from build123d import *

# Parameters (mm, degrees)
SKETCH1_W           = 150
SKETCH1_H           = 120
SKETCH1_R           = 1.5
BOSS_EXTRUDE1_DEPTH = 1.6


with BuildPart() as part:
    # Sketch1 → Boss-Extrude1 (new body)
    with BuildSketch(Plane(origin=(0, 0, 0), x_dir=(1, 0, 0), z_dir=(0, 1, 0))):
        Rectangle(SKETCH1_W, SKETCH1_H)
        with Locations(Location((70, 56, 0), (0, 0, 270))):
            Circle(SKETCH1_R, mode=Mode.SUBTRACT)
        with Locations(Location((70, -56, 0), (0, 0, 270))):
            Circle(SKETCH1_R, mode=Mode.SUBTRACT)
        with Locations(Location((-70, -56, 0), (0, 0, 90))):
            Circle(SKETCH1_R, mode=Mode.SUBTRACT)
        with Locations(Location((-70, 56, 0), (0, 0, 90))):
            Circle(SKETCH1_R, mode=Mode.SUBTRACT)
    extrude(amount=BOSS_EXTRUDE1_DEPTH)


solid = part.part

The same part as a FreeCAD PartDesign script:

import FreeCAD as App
import Part
import Sketcher

V = App.Vector

doc = App.newDocument("Part")
params = doc.addObject("Spreadsheet::Sheet", "Params")
for row, (alias, value) in enumerate([
    ("sketch1_diameter", "3 mm"),
    ("sketch1_width", "150 mm"),
    ("sketch1_height", "120 mm"),
    ("pad1_length", "1.6 mm"),
], start=1):
    params.set(f"A{row}", alias)
    params.set(f"B{row}", "=" + value)
    params.setAlias(f"B{row}", alias)

body = doc.addObject("PartDesign::Body", "Body")

sketch1 = body.newObject("Sketcher::SketchObject", "Sketch")
sketch1.AttachmentSupport = (doc.getObject("XZ_Plane"), [""])
sketch1.MapMode = "FlatFace"
sketch1.addGeometry([
    Part.LineSegment(V(-75, -60, 0), V(-75, 60, 0)),
    Part.LineSegment(V(-75, 60, 0), V(75, 60, 0)),
    Part.LineSegment(V(75, 60, 0), V(75, -60, 0)),
    Part.LineSegment(V(75, -60, 0), V(-75, -60, 0)),
    Part.Circle(V(-70, 56, 0), V(0, 0, 1), 1.5),
    Part.Circle(V(70, 56, 0), V(0, 0, 1), 1.5),
    Part.Circle(V(-70, -56, 0), V(0, 0, 1), 1.5),
    Part.Circle(V(70, -56, 0), V(0, 0, 1), 1.5),
], False)
sketch1.addConstraint([
    Sketcher.Constraint("Coincident", 0, 2, 1, 1),
    Sketcher.Constraint("Coincident", 1, 2, 2, 1),
    Sketcher.Constraint("Coincident", 2, 2, 3, 1),
    Sketcher.Constraint("Coincident", 3, 2, 0, 1),
    Sketcher.Constraint("Vertical", 0),
    Sketcher.Constraint("Horizontal", 1),
    Sketcher.Constraint("Vertical", 2),
    Sketcher.Constraint("Horizontal", 3),
    Sketcher.Constraint("Equal", 4, 5),
    Sketcher.Constraint("Equal", 5, 6),
    Sketcher.Constraint("Equal", 6, 7),
    Sketcher.Constraint("Symmetric", 5, 3, 6, 3, -1, 1),
    Sketcher.Constraint("Symmetric", 4, 3, 7, 3, -1, 1),
    Sketcher.Constraint("Symmetric", 0, 2, 2, 2, -1, 1),
    Sketcher.Constraint("Symmetric", 4, 3, 5, 3, -2),
    Sketcher.Constraint("Diameter", 4, 3.0),
    Sketcher.Constraint("DistanceX", 1, 1, 1, 2, 150.0),
    Sketcher.Constraint("DistanceY", 0, 1, 0, 2, 120.0),
    Sketcher.Constraint("DistanceX", 4, 3, -1, 1, 70.0),
    Sketcher.Constraint("DistanceY", -1, 1, 4, 3, 56.0),
])
sketch1.setExpression("Constraints[15]", "Params.sketch1_diameter")
sketch1.setExpression("Constraints[16]", "Params.sketch1_width")
sketch1.setExpression("Constraints[17]", "Params.sketch1_height")
pad1 = body.newObject("PartDesign::Pad", "Pad")
pad1.Profile = sketch1
pad1.setExpression("Length", "Params.pad1_length")
pad1.Reversed = True

doc.recompute()
